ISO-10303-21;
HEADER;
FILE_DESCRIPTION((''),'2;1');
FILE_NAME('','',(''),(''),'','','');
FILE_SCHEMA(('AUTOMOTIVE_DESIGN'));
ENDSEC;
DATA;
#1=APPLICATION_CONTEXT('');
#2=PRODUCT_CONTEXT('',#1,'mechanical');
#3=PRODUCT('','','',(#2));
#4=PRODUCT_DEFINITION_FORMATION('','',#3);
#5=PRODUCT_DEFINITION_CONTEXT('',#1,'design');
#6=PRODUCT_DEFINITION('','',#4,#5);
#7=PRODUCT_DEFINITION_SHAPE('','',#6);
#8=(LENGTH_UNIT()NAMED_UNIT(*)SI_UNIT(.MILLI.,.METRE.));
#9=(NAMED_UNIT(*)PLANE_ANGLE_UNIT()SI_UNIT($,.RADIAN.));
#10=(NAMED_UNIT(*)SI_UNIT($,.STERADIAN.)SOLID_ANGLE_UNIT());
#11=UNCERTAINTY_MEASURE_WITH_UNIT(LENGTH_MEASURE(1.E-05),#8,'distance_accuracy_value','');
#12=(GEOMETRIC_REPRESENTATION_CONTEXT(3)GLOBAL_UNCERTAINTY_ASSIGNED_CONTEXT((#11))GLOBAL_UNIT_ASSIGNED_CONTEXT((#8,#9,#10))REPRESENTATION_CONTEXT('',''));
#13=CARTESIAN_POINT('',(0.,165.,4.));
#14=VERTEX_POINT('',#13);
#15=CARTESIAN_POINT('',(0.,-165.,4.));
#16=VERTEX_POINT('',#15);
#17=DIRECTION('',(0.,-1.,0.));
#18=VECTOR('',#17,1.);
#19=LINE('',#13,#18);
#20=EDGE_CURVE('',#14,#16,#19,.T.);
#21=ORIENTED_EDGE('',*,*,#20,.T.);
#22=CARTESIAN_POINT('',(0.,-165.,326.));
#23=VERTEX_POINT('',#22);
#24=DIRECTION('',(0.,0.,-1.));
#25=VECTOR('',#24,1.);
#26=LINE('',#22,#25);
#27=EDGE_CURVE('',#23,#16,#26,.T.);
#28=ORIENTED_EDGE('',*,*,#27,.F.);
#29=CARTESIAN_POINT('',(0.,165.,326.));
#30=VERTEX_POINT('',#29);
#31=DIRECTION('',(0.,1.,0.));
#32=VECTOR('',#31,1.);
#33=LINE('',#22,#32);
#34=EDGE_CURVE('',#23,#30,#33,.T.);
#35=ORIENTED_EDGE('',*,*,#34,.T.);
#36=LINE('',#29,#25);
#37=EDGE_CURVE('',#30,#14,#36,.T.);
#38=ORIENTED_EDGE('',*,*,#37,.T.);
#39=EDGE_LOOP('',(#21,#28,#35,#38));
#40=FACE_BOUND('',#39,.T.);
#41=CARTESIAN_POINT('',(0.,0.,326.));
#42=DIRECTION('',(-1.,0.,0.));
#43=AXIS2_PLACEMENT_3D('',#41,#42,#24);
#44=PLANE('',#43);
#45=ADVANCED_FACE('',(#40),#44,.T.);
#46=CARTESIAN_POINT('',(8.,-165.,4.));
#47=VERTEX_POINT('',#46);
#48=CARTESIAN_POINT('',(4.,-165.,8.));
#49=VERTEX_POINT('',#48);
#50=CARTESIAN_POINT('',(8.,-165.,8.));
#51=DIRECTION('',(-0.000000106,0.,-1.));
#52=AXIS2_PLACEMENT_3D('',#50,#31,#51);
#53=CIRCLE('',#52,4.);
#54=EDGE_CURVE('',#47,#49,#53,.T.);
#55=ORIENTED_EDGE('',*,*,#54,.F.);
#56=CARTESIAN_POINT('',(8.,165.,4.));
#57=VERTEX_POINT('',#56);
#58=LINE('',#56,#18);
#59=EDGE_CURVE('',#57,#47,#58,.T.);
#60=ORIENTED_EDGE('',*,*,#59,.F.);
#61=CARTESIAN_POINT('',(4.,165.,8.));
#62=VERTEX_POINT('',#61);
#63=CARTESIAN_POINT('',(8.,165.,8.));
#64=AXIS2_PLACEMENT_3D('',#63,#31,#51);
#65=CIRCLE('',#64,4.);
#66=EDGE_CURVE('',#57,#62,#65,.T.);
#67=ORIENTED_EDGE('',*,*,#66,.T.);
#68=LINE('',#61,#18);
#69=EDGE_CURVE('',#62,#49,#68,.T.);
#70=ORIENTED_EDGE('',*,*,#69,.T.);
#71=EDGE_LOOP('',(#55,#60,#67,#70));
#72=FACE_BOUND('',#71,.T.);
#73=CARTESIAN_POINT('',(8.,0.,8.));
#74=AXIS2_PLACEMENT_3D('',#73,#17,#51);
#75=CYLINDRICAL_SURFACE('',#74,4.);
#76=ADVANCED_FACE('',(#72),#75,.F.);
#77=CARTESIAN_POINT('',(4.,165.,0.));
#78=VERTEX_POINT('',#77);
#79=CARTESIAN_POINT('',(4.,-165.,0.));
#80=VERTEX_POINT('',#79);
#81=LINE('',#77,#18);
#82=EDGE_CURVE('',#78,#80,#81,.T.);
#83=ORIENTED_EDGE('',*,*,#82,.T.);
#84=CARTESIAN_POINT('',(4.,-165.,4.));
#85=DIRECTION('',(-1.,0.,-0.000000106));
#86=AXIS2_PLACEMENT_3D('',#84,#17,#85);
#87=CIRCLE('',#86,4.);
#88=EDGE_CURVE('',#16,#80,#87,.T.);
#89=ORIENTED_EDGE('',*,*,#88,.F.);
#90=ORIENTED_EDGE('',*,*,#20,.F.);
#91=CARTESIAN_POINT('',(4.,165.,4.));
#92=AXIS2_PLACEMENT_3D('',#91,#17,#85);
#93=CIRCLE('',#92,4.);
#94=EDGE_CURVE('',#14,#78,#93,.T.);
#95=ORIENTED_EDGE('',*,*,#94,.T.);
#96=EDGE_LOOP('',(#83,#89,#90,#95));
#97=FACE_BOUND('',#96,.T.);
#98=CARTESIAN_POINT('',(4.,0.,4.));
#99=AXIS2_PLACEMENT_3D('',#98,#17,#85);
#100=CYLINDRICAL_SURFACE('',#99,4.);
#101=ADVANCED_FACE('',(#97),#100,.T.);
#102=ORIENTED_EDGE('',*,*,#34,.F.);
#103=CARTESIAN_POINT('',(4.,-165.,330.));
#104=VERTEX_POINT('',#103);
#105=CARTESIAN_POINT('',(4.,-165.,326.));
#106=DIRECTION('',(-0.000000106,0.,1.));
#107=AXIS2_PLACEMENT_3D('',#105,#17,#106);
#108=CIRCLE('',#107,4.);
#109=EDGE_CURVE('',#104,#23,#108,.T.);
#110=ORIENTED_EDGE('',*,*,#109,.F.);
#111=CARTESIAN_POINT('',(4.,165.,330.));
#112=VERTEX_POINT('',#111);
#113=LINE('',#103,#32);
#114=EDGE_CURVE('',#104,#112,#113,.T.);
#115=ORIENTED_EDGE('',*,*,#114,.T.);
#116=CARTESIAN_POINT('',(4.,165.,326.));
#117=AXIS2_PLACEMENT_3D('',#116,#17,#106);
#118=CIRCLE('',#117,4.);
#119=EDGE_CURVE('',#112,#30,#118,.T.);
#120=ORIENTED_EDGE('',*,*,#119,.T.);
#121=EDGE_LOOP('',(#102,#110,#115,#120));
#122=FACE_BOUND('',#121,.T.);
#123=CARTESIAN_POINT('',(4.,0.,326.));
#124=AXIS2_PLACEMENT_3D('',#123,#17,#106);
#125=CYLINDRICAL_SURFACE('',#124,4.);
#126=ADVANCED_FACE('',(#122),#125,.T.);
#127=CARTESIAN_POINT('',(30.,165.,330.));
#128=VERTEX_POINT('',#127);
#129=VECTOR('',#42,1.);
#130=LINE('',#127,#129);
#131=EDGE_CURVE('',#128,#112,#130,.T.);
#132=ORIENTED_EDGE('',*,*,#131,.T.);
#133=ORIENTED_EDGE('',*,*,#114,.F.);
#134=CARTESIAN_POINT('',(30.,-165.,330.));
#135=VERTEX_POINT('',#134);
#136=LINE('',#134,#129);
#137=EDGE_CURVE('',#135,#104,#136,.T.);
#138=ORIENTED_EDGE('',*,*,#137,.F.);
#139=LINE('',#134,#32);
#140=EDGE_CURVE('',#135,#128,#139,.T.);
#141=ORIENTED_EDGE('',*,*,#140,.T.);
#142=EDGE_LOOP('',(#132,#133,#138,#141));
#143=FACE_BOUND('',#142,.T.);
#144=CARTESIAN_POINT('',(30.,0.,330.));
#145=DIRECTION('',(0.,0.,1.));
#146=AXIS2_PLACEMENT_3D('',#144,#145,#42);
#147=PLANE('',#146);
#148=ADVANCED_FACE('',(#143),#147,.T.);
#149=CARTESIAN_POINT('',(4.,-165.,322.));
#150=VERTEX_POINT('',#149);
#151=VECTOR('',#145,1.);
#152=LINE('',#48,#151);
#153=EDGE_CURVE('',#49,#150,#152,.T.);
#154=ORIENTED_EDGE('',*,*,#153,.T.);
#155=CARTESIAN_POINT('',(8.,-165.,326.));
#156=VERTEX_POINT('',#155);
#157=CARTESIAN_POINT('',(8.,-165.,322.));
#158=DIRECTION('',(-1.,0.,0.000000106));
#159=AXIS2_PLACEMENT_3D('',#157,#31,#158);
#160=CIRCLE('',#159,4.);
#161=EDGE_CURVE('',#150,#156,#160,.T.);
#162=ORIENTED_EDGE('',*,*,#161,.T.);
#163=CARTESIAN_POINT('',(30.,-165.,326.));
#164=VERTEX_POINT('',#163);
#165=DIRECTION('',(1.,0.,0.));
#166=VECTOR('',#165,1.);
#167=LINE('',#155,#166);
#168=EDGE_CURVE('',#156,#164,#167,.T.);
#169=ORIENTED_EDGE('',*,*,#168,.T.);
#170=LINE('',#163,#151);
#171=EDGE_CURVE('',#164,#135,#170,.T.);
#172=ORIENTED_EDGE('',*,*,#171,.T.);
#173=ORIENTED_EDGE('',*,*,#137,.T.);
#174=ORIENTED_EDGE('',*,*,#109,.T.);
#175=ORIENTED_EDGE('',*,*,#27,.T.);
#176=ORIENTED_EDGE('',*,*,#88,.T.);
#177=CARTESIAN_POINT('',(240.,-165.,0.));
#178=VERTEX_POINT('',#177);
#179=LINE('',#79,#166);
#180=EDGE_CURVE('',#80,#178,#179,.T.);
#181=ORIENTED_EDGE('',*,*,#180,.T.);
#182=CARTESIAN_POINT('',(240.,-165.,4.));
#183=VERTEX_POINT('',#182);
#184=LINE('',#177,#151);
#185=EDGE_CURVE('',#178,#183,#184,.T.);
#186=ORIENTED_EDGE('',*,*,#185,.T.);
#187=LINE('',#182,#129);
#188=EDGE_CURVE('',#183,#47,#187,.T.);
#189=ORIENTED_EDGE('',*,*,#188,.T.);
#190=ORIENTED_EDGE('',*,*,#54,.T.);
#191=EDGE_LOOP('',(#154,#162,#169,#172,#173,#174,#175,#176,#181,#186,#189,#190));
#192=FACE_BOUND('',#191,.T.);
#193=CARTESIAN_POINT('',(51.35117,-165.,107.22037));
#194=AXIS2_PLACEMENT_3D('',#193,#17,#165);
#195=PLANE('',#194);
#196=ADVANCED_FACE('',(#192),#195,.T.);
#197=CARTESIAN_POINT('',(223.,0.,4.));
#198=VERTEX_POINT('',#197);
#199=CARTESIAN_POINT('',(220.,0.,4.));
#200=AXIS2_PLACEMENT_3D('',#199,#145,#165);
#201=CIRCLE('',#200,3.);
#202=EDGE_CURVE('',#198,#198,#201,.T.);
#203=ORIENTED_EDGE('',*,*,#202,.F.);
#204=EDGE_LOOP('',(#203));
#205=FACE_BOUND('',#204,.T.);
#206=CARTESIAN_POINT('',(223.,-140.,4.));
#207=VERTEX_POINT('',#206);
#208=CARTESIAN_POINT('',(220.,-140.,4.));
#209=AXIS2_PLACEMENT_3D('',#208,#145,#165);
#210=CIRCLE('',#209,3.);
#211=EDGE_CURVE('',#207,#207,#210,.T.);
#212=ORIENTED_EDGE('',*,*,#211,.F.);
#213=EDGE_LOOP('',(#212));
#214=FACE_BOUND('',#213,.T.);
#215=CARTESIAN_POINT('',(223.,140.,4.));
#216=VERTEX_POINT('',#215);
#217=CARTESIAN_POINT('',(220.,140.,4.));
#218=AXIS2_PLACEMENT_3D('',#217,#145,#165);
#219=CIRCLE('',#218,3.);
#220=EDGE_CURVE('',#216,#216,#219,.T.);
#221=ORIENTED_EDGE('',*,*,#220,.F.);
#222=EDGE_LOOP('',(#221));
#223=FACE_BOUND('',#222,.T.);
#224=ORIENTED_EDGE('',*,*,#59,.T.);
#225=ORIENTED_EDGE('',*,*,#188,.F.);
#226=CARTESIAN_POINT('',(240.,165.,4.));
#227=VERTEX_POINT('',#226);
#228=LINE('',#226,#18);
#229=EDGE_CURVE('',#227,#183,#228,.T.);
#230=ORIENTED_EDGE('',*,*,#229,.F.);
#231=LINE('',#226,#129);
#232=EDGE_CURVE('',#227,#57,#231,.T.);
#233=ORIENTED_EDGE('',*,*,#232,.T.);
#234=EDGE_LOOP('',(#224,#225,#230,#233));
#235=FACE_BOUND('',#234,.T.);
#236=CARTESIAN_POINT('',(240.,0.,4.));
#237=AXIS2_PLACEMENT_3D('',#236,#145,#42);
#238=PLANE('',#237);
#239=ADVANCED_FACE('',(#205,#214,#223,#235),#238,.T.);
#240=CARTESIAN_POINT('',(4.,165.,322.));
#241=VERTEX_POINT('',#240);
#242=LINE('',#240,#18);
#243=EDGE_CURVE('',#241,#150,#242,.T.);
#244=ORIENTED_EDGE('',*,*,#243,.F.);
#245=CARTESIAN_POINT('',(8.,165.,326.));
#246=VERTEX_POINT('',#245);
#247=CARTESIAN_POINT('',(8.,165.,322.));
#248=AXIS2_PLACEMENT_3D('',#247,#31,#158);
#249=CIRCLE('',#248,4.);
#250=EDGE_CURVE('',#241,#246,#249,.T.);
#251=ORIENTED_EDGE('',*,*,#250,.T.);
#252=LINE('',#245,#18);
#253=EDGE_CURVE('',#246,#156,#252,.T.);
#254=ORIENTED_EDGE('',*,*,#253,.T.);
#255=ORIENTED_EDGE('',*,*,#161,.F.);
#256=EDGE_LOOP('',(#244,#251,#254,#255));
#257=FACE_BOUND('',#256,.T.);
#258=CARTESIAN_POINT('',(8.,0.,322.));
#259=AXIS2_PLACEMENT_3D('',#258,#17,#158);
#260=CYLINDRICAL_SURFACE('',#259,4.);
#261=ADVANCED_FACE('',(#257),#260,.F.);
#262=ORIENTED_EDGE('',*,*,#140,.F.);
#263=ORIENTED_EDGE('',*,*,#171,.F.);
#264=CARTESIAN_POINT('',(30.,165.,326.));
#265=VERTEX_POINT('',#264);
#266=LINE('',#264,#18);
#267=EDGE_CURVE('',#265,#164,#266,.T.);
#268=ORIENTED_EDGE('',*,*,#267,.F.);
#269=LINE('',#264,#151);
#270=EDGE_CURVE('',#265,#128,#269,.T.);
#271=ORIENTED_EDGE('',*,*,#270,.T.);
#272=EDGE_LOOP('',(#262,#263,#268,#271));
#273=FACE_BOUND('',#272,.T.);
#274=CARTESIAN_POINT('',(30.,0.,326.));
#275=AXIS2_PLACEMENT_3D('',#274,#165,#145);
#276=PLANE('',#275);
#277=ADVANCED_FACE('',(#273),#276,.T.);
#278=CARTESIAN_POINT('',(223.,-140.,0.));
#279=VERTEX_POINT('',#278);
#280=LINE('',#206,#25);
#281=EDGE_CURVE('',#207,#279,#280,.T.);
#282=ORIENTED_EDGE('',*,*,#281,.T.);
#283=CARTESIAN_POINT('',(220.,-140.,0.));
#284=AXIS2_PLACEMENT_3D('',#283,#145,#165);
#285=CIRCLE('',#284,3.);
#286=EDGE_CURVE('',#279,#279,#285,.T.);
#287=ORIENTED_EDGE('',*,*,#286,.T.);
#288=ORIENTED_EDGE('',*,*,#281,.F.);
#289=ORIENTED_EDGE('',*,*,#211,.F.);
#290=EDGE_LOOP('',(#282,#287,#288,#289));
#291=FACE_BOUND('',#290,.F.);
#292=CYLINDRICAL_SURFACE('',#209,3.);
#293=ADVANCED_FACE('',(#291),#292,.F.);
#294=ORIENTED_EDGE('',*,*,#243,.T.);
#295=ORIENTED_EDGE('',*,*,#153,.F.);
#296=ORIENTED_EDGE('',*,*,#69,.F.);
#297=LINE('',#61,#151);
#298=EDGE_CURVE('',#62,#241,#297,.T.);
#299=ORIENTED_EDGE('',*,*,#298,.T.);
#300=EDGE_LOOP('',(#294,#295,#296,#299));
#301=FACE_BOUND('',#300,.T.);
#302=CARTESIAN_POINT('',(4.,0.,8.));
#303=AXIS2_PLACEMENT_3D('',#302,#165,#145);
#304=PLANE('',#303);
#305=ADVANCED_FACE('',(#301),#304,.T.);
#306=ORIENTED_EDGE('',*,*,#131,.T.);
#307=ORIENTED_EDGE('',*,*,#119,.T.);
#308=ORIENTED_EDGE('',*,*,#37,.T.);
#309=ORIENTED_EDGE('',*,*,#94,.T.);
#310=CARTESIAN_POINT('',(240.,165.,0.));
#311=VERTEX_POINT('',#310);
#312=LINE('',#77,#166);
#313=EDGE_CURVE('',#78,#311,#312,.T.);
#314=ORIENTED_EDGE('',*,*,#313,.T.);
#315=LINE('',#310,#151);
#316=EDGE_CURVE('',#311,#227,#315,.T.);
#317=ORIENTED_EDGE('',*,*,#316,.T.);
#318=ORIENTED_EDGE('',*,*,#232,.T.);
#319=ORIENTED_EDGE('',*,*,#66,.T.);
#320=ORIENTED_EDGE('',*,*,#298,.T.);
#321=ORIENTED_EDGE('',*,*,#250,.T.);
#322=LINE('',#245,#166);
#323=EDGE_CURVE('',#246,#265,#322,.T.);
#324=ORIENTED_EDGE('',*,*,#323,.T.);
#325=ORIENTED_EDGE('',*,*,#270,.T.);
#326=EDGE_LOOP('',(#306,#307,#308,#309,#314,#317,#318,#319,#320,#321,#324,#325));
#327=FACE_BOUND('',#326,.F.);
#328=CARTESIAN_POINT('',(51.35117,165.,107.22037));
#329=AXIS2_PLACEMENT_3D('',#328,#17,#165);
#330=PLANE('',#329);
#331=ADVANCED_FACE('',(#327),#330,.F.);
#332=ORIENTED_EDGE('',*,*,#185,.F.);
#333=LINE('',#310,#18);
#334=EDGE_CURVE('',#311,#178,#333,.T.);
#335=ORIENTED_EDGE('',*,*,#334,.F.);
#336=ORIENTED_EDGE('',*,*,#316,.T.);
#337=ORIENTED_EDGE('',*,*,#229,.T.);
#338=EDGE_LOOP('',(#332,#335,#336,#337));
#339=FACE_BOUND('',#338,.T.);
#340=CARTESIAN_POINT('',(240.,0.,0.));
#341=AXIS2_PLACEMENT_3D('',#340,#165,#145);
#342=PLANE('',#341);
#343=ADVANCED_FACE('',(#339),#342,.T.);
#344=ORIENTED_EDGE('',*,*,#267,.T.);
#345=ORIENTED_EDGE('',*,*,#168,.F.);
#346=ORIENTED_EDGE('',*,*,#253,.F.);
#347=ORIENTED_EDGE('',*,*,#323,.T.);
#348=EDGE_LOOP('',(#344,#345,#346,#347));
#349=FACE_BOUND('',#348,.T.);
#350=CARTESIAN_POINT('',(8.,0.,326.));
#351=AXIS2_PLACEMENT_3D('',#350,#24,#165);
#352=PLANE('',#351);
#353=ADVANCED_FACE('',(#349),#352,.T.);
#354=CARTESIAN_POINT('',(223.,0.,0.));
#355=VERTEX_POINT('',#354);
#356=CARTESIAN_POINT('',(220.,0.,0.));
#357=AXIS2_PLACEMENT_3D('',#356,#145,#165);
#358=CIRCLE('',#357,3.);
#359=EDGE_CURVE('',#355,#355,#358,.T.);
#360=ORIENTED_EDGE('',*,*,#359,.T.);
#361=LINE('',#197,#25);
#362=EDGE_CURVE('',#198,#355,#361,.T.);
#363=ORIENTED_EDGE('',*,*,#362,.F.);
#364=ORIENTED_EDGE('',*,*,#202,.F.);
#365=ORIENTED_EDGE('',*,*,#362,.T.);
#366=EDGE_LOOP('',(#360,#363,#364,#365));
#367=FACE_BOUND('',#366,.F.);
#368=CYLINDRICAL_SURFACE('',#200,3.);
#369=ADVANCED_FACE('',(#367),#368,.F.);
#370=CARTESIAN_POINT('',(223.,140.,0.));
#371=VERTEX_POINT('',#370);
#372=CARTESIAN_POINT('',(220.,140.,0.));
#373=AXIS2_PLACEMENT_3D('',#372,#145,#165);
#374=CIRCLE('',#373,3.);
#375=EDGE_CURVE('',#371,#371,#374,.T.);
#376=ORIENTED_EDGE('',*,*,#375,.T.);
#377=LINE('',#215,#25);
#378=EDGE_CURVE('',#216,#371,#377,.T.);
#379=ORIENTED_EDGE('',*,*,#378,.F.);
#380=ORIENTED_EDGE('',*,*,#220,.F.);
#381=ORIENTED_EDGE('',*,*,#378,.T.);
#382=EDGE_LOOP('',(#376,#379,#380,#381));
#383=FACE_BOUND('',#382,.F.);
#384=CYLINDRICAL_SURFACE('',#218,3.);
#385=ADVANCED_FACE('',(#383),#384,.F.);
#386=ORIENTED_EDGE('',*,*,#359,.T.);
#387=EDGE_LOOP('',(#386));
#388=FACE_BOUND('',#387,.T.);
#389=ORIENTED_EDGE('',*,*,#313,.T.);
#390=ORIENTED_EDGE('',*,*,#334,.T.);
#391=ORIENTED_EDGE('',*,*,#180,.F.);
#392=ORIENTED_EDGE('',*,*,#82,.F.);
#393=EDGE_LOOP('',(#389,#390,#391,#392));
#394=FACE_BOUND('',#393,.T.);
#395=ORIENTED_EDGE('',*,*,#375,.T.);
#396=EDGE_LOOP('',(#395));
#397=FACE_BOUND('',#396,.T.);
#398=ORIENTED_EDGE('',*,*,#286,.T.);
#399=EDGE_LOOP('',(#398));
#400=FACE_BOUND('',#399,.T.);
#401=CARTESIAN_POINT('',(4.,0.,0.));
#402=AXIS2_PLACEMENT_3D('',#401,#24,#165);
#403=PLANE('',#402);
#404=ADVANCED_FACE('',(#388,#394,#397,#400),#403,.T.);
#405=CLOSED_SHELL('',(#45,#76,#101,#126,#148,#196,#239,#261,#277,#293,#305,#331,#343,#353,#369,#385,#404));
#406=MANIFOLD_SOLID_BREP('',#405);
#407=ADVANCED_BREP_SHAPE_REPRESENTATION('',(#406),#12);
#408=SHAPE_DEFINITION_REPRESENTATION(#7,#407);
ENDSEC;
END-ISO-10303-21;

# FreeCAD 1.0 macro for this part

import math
import FreeCAD as App
import Part
import Sketcher
from FreeCAD import Vector
Q = App.Units.Quantity

doc = App.newDocument("Part")
body = doc.addObject("PartDesign::Body", "Body")

sketch1 = body.newObject("Sketcher::SketchObject", "Sketch")
sketch1.AttachmentSupport = (doc.getObject("XZ_Plane"), [""])
sketch1.MapMode = "FlatFace"
sketch1.addGeometry(Part.LineSegment(Vector(0, 326, 0), Vector(0, 4, 0)), False)
sketch1.addGeometry(Part.ArcOfCircle(Part.Circle(Vector(4, 4, 0), Vector(0, 0, 1), 4), math.radians(-180), math.radians(-90)), False)
sketch1.addGeometry(Part.LineSegment(Vector(4, 0, 0), Vector(240, 0, 0)), False)
sketch1.addGeometry(Part.LineSegment(Vector(240, 0, 0), Vector(240, 4, 0)), False)
sketch1.addGeometry(Part.LineSegment(Vector(240, 4, 0), Vector(8, 4, 0)), False)
sketch1.addGeometry(Part.ArcOfCircle(Part.Circle(Vector(8, 8, 0), Vector(0, 0, 1), 4), math.radians(-180), math.radians(-90)), False)
sketch1.addGeometry(Part.LineSegment(Vector(4, 8, 0), Vector(4, 322, 0)), False)
sketch1.addGeometry(Part.ArcOfCircle(Part.Circle(Vector(8, 322, 0), Vector(0, 0, 1), 4), math.radians(90), math.radians(180)), False)
sketch1.addGeometry(Part.LineSegment(Vector(8, 326, 0), Vector(30, 326, 0)), False)
sketch1.addGeometry(Part.LineSegment(Vector(30, 326, 0), Vector(30, 330, 0)), False)
sketch1.addGeometry(Part.LineSegment(Vector(30, 330, 0), Vector(4, 330, 0)), False)
sketch1.addGeometry(Part.ArcOfCircle(Part.Circle(Vector(4, 326, 0), Vector(0, 0, 1), 4), math.radians(90), math.radians(180)), False)
sketch1.addConstraint(Sketcher.Constraint("Tangent", 0, 2, 1, 1))
sketch1.addConstraint(Sketcher.Constraint("Tangent", 1, 2, 2, 1))
sketch1.addConstraint(Sketcher.Constraint("Coincident", 2, 2, 3, 1))
sketch1.addConstraint(Sketcher.Constraint("Coincident", 3, 2, 4, 1))
sketch1.addConstraint(Sketcher.Constraint("Tangent", 4, 2, 5, 2))
sketch1.addConstraint(Sketcher.Constraint("Tangent", 5, 1, 6, 1))
sketch1.addConstraint(Sketcher.Constraint("Tangent", 6, 2, 7, 2))
sketch1.addConstraint(Sketcher.Constraint("Tangent", 7, 1, 8, 1))
sketch1.addConstraint(Sketcher.Constraint("Coincident", 8, 2, 9, 1))
sketch1.addConstraint(Sketcher.Constraint("Coincident", 9, 2, 10, 1))
sketch1.addConstraint(Sketcher.Constraint("Tangent", 10, 2, 11, 1))
sketch1.addConstraint(Sketcher.Constraint("Tangent", 11, 2, 0, 1))
sketch1.addConstraint(Sketcher.Constraint("Vertical", 0))
sketch1.addConstraint(Sketcher.Constraint("Horizontal", 2))
sketch1.addConstraint(Sketcher.Constraint("Vertical", 3))
sketch1.addConstraint(Sketcher.Constraint("Horizontal", 4))
sketch1.addConstraint(Sketcher.Constraint("Vertical", 6))
sketch1.addConstraint(Sketcher.Constraint("Horizontal", 8))
sketch1.addConstraint(Sketcher.Constraint("Vertical", 9))
sketch1.addConstraint(Sketcher.Constraint("Horizontal", 10))
sketch1.addConstraint(Sketcher.Constraint("Equal", 1, 5))
sketch1.addConstraint(Sketcher.Constraint("Equal", 5, 7))
sketch1.addConstraint(Sketcher.Constraint("Equal", 7, 11))
sketch1.addConstraint(Sketcher.Constraint("PointOnObject", 0, 2, -2))
sketch1.addConstraint(Sketcher.Constraint("PointOnObject", 1, 2, -1))
sketch1.addConstraint(Sketcher.Constraint("Horizontal", 0, 2, 3, 2))
sketch1.addConstraint(Sketcher.Constraint("Horizontal", 11, 3, 7, 1))
sketch1.addConstraint(Sketcher.Constraint("Vertical", 1, 2, 5, 1))
sketch1.addConstraint(Sketcher.Constraint("Radius", 1, Q("4 mm")))
sketch1.addConstraint(Sketcher.Constraint("DistanceX", 2, 1, 2, 2, Q("236 mm")))
sketch1.addConstraint(Sketcher.Constraint("DistanceX", 8, 1, 8, 2, Q("22 mm")))
sketch1.addConstraint(Sketcher.Constraint("DistanceY", 0, 2, 0, 1, Q("322 mm")))
pad1 = body.newObject("PartDesign::Pad", "Pad")
pad1.Profile = sketch1
pad1.Length = 330
pad1.Midplane = True

sketch2 = body.newObject("Sketcher::SketchObject", "Sketch001")
sketch2.AttachmentSupport = (doc.getObject("XY_Plane"), [""])
sketch2.MapMode = "FlatFace"
sketch2.AttachmentOffset = App.Placement(Vector(0, 0, 4), App.Rotation())
sketch2.addGeometry(Part.Circle(Vector(220, 140, 0), Vector(0, 0, 1), 3), False)
sketch2.addGeometry(Part.Circle(Vector(220, 0, 0), Vector(0, 0, 1), 3), False)
sketch2.addGeometry(Part.Circle(Vector(220, -140, 0), Vector(0, 0, 1), 3), False)
sketch2.addConstraint(Sketcher.Constraint("Equal", 0, 1))
sketch2.addConstraint(Sketcher.Constraint("Equal", 1, 2))
sketch2.addConstraint(Sketcher.Constraint("Symmetric", 0, 3, 2, 3, -1))
sketch2.addConstraint(Sketcher.Constraint("PointOnObject", 1, 3, -1))
sketch2.addConstraint(Sketcher.Constraint("Vertical", 0, 3, 1, 3))
sketch2.addConstraint(Sketcher.Constraint("Diameter", 0, Q("6 mm")))
sketch2.addConstraint(Sketcher.Constraint("DistanceX", -1, 1, 0, 3, Q("220 mm")))
sketch2.addConstraint(Sketcher.Constraint("DistanceY", -1, 1, 0, 3, Q("140 mm")))
pocket1 = body.newObject("PartDesign::Pocket", "Pocket")
pocket1.Profile = sketch2
pocket1.Type = "ThroughAll"
pocket1.Midplane = True

doc.recompute()
